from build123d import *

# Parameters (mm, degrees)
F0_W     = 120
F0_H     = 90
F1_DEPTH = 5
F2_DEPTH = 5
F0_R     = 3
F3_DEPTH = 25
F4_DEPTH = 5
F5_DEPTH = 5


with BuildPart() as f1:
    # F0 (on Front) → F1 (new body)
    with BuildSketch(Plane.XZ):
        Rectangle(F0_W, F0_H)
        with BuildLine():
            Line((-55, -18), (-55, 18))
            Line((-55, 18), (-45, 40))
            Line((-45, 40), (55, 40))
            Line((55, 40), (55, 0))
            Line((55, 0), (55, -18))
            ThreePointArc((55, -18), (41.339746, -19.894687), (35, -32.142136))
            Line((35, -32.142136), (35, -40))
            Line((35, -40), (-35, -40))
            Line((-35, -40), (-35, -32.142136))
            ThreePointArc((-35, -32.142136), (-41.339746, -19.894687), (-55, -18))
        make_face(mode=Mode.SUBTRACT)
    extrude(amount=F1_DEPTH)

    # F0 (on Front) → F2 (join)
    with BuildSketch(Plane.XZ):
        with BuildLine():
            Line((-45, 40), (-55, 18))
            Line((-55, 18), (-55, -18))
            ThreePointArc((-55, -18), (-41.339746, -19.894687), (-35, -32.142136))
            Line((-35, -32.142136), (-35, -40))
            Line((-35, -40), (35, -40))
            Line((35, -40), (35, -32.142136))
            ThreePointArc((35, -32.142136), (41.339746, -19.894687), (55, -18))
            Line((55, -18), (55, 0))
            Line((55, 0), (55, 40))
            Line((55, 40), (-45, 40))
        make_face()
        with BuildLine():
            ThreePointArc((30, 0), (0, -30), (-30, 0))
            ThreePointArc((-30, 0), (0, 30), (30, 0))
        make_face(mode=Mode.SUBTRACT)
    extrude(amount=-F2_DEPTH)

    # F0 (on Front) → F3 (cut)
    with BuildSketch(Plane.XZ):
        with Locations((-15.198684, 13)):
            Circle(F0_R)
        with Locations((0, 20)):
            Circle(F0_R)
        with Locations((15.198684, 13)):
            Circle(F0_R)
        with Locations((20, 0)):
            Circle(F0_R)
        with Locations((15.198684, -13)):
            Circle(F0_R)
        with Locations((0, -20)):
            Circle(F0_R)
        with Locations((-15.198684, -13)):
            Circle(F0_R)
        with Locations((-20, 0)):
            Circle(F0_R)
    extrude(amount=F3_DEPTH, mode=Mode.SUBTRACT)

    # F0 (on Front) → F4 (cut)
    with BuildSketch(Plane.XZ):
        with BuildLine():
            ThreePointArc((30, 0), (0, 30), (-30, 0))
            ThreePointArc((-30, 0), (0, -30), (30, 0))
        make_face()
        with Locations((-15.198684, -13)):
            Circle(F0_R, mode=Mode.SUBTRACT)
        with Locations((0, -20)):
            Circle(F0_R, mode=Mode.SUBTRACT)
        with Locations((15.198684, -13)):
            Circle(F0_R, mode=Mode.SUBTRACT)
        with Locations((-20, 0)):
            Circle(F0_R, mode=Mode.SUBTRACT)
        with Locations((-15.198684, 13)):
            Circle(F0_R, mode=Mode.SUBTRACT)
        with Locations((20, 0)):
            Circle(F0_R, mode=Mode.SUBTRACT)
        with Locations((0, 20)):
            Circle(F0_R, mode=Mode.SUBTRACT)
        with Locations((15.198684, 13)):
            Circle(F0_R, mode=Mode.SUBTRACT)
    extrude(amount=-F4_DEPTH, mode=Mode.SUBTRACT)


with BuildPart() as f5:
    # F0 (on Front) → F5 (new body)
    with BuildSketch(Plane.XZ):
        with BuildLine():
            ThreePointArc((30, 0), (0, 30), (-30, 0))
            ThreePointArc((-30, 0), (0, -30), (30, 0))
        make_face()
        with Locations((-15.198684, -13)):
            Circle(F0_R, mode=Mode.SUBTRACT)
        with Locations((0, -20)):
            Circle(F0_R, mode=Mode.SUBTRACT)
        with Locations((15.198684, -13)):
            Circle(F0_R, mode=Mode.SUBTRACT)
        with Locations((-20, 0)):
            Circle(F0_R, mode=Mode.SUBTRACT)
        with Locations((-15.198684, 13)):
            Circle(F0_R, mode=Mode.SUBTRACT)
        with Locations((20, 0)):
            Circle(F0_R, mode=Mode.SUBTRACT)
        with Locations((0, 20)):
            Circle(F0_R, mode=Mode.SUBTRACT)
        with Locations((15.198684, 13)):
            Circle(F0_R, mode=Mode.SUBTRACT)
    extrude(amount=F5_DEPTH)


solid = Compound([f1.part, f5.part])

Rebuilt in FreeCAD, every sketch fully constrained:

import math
import FreeCAD as App
import Part
import Sketcher

V = App.Vector

doc = App.newDocument("Part")
body = doc.addObject("PartDesign::Body", "Body")
body.AllowCompound = True

sketch1 = body.newObject("Sketcher::SketchObject", "Sketch")
sketch1.AttachmentSupport = (doc.getObject("XZ_Plane"), [""])
sketch1.MapMode = "FlatFace"
sketch1.addGeometry([
    Part.LineSegment(V(-60, 45, 0), V(-60, -45, 0)),
    Part.LineSegment(V(-60, -45, 0), V(60, -45, 0)),
    Part.LineSegment(V(60, -45, 0), V(60, 45, 0)),
    Part.LineSegment(V(60, 45, 0), V(-60, 45, 0)),
    Part.ArcOfCircle(Part.Circle(V(-50, -32, 0), V(0, 0, 1), 15), math.radians(0), math.radians(109)),
    Part.LineSegment(V(-55, -18, 0), V(-55, 18, 0)),
    Part.LineSegment(V(-55, 18, 0), V(-45, 40, 0)),
    Part.LineSegment(V(-45, 40, 0), V(55, 40, 0)),
    Part.LineSegment(V(55, 40, 0), V(55, -18, 0)),
    Part.ArcOfCircle(Part.Circle(V(50, -32, 0), V(0, 0, 1), 15), math.radians(71), math.radians(180)),
    Part.LineSegment(V(35, -32, 0), V(35, -40, 0)),
    Part.LineSegment(V(35, -40, 0), V(-35, -40, 0)),
    Part.LineSegment(V(-35, -40, 0), V(-35, -32, 0)),
], False)
sketch1.addConstraint([
    Sketcher.Constraint("Coincident", 0, 2, 1, 1),
    Sketcher.Constraint("Coincident", 1, 2, 2, 1),
    Sketcher.Constraint("Coincident", 2, 2, 3, 1),
    Sketcher.Constraint("Coincident", 3, 2, 0, 1),
    Sketcher.Constraint("Coincident", 4, 2, 5, 1),
    Sketcher.Constraint("Coincident", 5, 2, 6, 1),
    Sketcher.Constraint("Coincident", 6, 2, 7, 1),
    Sketcher.Constraint("Coincident", 7, 2, 8, 1),
    Sketcher.Constraint("Coincident", 8, 2, 9, 1),
    Sketcher.Constraint("Tangent", 9, 2, 10, 1),
    Sketcher.Constraint("Coincident", 10, 2, 11, 1),
    Sketcher.Constraint("Coincident", 11, 2, 12, 1),
    Sketcher.Constraint("Tangent", 12, 2, 4, 1),
    Sketcher.Constraint("Vertical", 0),
    Sketcher.Constraint("Horizontal", 1),
    Sketcher.Constraint("Vertical", 2),
    Sketcher.Constraint("Horizontal", 3),
    Sketcher.Constraint("Vertical", 5),
    Sketcher.Constraint("Horizontal", 7),
    Sketcher.Constraint("Vertical", 8),
    Sketcher.Constraint("Vertical", 10),
    Sketcher.Constraint("Horizontal", 11),
    Sketcher.Constraint("Vertical", 12),
    Sketcher.Constraint("Equal", 4, 9),
    Sketcher.Constraint("Symmetric", 0, 2, 2, 2, -1, 1),
    Sketcher.Constraint("Symmetric", 5, 2, 8, 2, -1, 1),
    Sketcher.Constraint("Symmetric", 4, 3, 9, 3, -2),
    Sketcher.Constraint("Radius", 4, 15.0),
    Sketcher.Constraint("DistanceX", 1, 1, 1, 2, 120.0),
    Sketcher.Constraint("DistanceX", 7, 1, 7, 2, 100.0),
    Sketcher.Constraint("DistanceX", 11, 2, 11, 1, 70.0),
    Sketcher.Constraint("DistanceY", 0, 2, 0, 1, 90.0),
    Sketcher.Constraint("DistanceY", 5, 1, 5, 2, 36.0),
    Sketcher.Constraint("DistanceY", 8, 2, 8, 1, 58.0),
    Sketcher.Constraint("DistanceX", 4, 2, -1, 1, 55.0),
    Sketcher.Constraint("DistanceY", 10, 2, -1, 1, 40.0),
])
pad1 = body.newObject("PartDesign::Pad", "Pad")
pad1.Profile = sketch1
pad1.Length = 5

sketch2 = body.newObject("Sketcher::SketchObject", "Sketch001")
sketch2.AttachmentSupport = (doc.getObject("XZ_Plane"), [""])
sketch2.MapMode = "FlatFace"
sketch2.addGeometry([
    Part.LineSegment(V(-45, 40, 0), V(-55, 18, 0)),
    Part.LineSegment(V(-55, 18, 0), V(-55, -18, 0)),
    Part.ArcOfCircle(Part.Circle(V(-50, -32, 0), V(0, 0, 1), 15), math.radians(0), math.radians(109)),
    Part.LineSegment(V(-35, -32, 0), V(-35, -40, 0)),
    Part.LineSegment(V(-35, -40, 0), V(35, -40, 0)),
    Part.LineSegment(V(35, -40, 0), V(35, -32, 0)),
    Part.ArcOfCircle(Part.Circle(V(50, -32, 0), V(0, 0, 1), 15), math.radians(71), math.radians(180)),
    Part.LineSegment(V(55, -18, 0), V(55, 40, 0)),
    Part.LineSegment(V(55, 40, 0), V(-45, 40, 0)),
    Part.Circle(V(0, 0, 0), V(0, 0, 1), 30),
], False)
sketch2.addConstraint([
    Sketcher.Constraint("Coincident", 0, 2, 1, 1),
    Sketcher.Constraint("Coincident", 1, 2, 2, 2),
    Sketcher.Constraint("Tangent", 2, 1, 3, 1),
    Sketcher.Constraint("Coincident", 3, 2, 4, 1),
    Sketcher.Constraint("Coincident", 4, 2, 5, 1),
    Sketcher.Constraint("Tangent", 5, 2, 6, 2),
    Sketcher.Constraint("Coincident", 6, 1, 7, 1),
    Sketcher.Constraint("Coincident", 7, 2, 8, 1),
    Sketcher.Constraint("Coincident", 8, 2, 0, 1),
    Sketcher.Constraint("Vertical", 1),
    Sketcher.Constraint("Vertical", 3),
    Sketcher.Constraint("Horizontal", 4),
    Sketcher.Constraint("Vertical", 5),
    Sketcher.Constraint("Vertical", 7),
    Sketcher.Constraint("Horizontal", 8),
    Sketcher.Constraint("Coincident", 9, 3, -1, 1),
    Sketcher.Constraint("Equal", 2, 6),
    Sketcher.Constraint("Symmetric", 0, 2, 6, 1, -1, 1),
    Sketcher.Constraint("Symmetric", 2, 3, 6, 3, -2),
    Sketcher.Constraint("Diameter", 9, 60.0),
    Sketcher.Constraint("Radius", 2, 15.0),
    Sketcher.Constraint("DistanceX", 4, 1, 4, 2, 70.0),
    Sketcher.Constraint("DistanceX", 8, 2, 8, 1, 100.0),
    Sketcher.Constraint("DistanceY", 1, 2, 1, 1, 36.0),
    Sketcher.Constraint("DistanceY", 7, 1, 7, 2, 58.0),
    Sketcher.Constraint("DistanceX", 0, 2, -1, 1, 55.0),
    Sketcher.Constraint("DistanceY", 3, 2, -1, 1, 40.0),
])
pad2 = body.newObject("PartDesign::Pad", "Pad001")
pad2.Profile = sketch2
pad2.Length = 5
pad2.Reversed = True

sketch3 = body.newObject("Sketcher::SketchObject", "Sketch002")
sketch3.AttachmentSupport = (doc.getObject("XZ_Plane"), [""])
sketch3.MapMode = "FlatFace"
sketch3.addGeometry([
    Part.Circle(V(-15.2, 13, 0), V(0, 0, 1), 3),
    Part.Circle(V(0, 20, 0), V(0, 0, 1), 3),
    Part.Circle(V(15.2, 13, 0), V(0, 0, 1), 3),
    Part.Circle(V(20, 0, 0), V(0, 0, 1), 3),
    Part.Circle(V(15.2, -13, 0), V(0, 0, 1), 3),
    Part.Circle(V(0, -20, 0), V(0, 0, 1), 3),
    Part.Circle(V(-15.2, -13, 0), V(0, 0, 1), 3),
    Part.Circle(V(-20, 0, 0), V(0, 0, 1), 3),
], False)
sketch3.addConstraint([
    Sketcher.Constraint("Equal", 0, 1),
    Sketcher.Constraint("Equal", 1, 2),
    Sketcher.Constraint("Equal", 2, 3),
    Sketcher.Constraint("Equal", 3, 4),
    Sketcher.Constraint("Equal", 4, 5),
    Sketcher.Constraint("Equal", 5, 6),
    Sketcher.Constraint("Equal", 6, 7),
    Sketcher.Constraint("Symmetric", 0, 3, 4, 3, -1, 1),
    Sketcher.Constraint("Symmetric", 1, 3, 5, 3, -1, 1),
    Sketcher.Constraint("Symmetric", 2, 3, 6, 3, -1, 1),
    Sketcher.Constraint("Symmetric", 3, 3, 7, 3, -1, 1),
    Sketcher.Constraint("Symmetric", 0, 3, 2, 3, -2),
    Sketcher.Constraint("PointOnObject", 1, 3, -2),
    Sketcher.Constraint("PointOnObject", 3, 3, -1),
    Sketcher.Constraint("Diameter", 0, 6.0),
    Sketcher.Constraint("DistanceY", -1, 1, 0, 3, 13.0),
    Sketcher.Constraint("DistanceY", -1, 1, 1, 3, 20.0),
    Sketcher.Constraint("DistanceX", -1, 1, 3, 3, 20.0),
    Sketcher.Constraint("DistanceX", 0, 3, 2, 3, 30.397368),
])
pocket1 = body.newObject("PartDesign::Pocket", "Pocket")
pocket1.Profile = sketch3
pocket1.Length = 25
pocket1.Reversed = True

sketch4 = body.newObject("Sketcher::SketchObject", "Sketch003")
sketch4.AttachmentSupport = (doc.getObject("XZ_Plane"), [""])
sketch4.MapMode = "FlatFace"
sketch4.addGeometry([
    Part.Circle(V(0, 0, 0), V(0, 0, 1), 30),
    Part.Circle(V(-15.2, -13, 0), V(0, 0, 1), 3),
    Part.Circle(V(0, -20, 0), V(0, 0, 1), 3),
    Part.Circle(V(15.2, -13, 0), V(0, 0, 1), 3),
    Part.Circle(V(-20, 0, 0), V(0, 0, 1), 3),
    Part.Circle(V(-15.2, 13, 0), V(0, 0, 1), 3),
    Part.Circle(V(20, 0, 0), V(0, 0, 1), 3),
    Part.Circle(V(0, 20, 0), V(0, 0, 1), 3),
    Part.Circle(V(15.2, 13, 0), V(0, 0, 1), 3),
], False)
sketch4.addConstraint([
    Sketcher.Constraint("Coincident", 0, 3, -1, 1),
    Sketcher.Constraint("Equal", 1, 2),
    Sketcher.Constraint("Equal", 2, 3),
    Sketcher.Constraint("Equal", 3, 4),
    Sketcher.Constraint("Equal", 4, 5),
    Sketcher.Constraint("Equal", 5, 6),
    Sketcher.Constraint("Equal", 6, 7),
    Sketcher.Constraint("Equal", 7, 8),
    Sketcher.Constraint("Symmetric", 3, 3, 5, 3, -1, 1),
    Sketcher.Constraint("Symmetric", 4, 3, 6, 3, -1, 1),
    Sketcher.Constraint("Symmetric", 2, 3, 7, 3, -1, 1),
    Sketcher.Constraint("Symmetric", 1, 3, 8, 3, -1, 1),
    Sketcher.Constraint("Symmetric", 1, 3, 3, 3, -2),
    Sketcher.Constraint("PointOnObject", 2, 3, -2),
    Sketcher.Constraint("PointOnObject", 4, 3, -1),
    Sketcher.Constraint("Diameter", 0, 60.0),
    Sketcher.Constraint("Diameter", 1, 6.0),
    Sketcher.Constraint("DistanceY", 1, 3, -1, 1, 13.0),
    Sketcher.Constraint("DistanceY", 2, 3, -1, 1, 20.0),
    Sketcher.Constraint("DistanceX", 4, 3, -1, 1, 20.0),
    Sketcher.Constraint("DistanceX", 1, 3, 3, 3, 30.397368),
])
pocket2 = body.newObject("PartDesign::Pocket", "Pocket001")
pocket2.Profile = sketch4
pocket2.Length = 5
body2 = doc.addObject("PartDesign::Body", "Body001")

sketch5 = body2.newObject("Sketcher::SketchObject", "Sketch004")
sketch5.AttachmentSupport = (doc.getObject("XZ_Plane001"), [""])
sketch5.MapMode = "FlatFace"
sketch5.addGeometry([
    Part.Circle(V(0, 0, 0), V(0, 0, 1), 30),
    Part.Circle(V(-15.2, -13, 0), V(0, 0, 1), 3),
    Part.Circle(V(0, -20, 0), V(0, 0, 1), 3),
    Part.Circle(V(15.2, -13, 0), V(0, 0, 1), 3),
    Part.Circle(V(-20, 0, 0), V(0, 0, 1), 3),
    Part.Circle(V(-15.2, 13, 0), V(0, 0, 1), 3),
    Part.Circle(V(20, 0, 0), V(0, 0, 1), 3),
    Part.Circle(V(0, 20, 0), V(0, 0, 1), 3),
    Part.Circle(V(15.2, 13, 0), V(0, 0, 1), 3),
], False)
sketch5.addConstraint([
    Sketcher.Constraint("Coincident", 0, 3, -1, 1),
    Sketcher.Constraint("Equal", 1, 2),
    Sketcher.Constraint("Equal", 2, 3),
    Sketcher.Constraint("Equal", 3, 4),
    Sketcher.Constraint("Equal", 4, 5),
    Sketcher.Constraint("Equal", 5, 6),
    Sketcher.Constraint("Equal", 6, 7),
    Sketcher.Constraint("Equal", 7, 8),
    Sketcher.Constraint("Symmetric", 3, 3, 5, 3, -1, 1),
    Sketcher.Constraint("Symmetric", 4, 3, 6, 3, -1, 1),
    Sketcher.Constraint("Symmetric", 2, 3, 7, 3, -1, 1),
    Sketcher.Constraint("Symmetric", 1, 3, 8, 3, -1, 1),
    Sketcher.Constraint("Symmetric", 1, 3, 3, 3, -2),
    Sketcher.Constraint("PointOnObject", 2, 3, -2),
    Sketcher.Constraint("PointOnObject", 4, 3, -1),
    Sketcher.Constraint("Diameter", 0, 60.0),
    Sketcher.Constraint("Diameter", 1, 6.0),
    Sketcher.Constraint("DistanceY", 1, 3, -1, 1, 13.0),
    Sketcher.Constraint("DistanceY", 2, 3, -1, 1, 20.0),
    Sketcher.Constraint("DistanceX", 4, 3, -1, 1, 20.0),
    Sketcher.Constraint("DistanceX", 1, 3, 3, 3, 30.397368),
])
pad3 = body2.newObject("PartDesign::Pad", "Pad002")
pad3.Profile = sketch5
pad3.Length = 5

doc.recompute()
